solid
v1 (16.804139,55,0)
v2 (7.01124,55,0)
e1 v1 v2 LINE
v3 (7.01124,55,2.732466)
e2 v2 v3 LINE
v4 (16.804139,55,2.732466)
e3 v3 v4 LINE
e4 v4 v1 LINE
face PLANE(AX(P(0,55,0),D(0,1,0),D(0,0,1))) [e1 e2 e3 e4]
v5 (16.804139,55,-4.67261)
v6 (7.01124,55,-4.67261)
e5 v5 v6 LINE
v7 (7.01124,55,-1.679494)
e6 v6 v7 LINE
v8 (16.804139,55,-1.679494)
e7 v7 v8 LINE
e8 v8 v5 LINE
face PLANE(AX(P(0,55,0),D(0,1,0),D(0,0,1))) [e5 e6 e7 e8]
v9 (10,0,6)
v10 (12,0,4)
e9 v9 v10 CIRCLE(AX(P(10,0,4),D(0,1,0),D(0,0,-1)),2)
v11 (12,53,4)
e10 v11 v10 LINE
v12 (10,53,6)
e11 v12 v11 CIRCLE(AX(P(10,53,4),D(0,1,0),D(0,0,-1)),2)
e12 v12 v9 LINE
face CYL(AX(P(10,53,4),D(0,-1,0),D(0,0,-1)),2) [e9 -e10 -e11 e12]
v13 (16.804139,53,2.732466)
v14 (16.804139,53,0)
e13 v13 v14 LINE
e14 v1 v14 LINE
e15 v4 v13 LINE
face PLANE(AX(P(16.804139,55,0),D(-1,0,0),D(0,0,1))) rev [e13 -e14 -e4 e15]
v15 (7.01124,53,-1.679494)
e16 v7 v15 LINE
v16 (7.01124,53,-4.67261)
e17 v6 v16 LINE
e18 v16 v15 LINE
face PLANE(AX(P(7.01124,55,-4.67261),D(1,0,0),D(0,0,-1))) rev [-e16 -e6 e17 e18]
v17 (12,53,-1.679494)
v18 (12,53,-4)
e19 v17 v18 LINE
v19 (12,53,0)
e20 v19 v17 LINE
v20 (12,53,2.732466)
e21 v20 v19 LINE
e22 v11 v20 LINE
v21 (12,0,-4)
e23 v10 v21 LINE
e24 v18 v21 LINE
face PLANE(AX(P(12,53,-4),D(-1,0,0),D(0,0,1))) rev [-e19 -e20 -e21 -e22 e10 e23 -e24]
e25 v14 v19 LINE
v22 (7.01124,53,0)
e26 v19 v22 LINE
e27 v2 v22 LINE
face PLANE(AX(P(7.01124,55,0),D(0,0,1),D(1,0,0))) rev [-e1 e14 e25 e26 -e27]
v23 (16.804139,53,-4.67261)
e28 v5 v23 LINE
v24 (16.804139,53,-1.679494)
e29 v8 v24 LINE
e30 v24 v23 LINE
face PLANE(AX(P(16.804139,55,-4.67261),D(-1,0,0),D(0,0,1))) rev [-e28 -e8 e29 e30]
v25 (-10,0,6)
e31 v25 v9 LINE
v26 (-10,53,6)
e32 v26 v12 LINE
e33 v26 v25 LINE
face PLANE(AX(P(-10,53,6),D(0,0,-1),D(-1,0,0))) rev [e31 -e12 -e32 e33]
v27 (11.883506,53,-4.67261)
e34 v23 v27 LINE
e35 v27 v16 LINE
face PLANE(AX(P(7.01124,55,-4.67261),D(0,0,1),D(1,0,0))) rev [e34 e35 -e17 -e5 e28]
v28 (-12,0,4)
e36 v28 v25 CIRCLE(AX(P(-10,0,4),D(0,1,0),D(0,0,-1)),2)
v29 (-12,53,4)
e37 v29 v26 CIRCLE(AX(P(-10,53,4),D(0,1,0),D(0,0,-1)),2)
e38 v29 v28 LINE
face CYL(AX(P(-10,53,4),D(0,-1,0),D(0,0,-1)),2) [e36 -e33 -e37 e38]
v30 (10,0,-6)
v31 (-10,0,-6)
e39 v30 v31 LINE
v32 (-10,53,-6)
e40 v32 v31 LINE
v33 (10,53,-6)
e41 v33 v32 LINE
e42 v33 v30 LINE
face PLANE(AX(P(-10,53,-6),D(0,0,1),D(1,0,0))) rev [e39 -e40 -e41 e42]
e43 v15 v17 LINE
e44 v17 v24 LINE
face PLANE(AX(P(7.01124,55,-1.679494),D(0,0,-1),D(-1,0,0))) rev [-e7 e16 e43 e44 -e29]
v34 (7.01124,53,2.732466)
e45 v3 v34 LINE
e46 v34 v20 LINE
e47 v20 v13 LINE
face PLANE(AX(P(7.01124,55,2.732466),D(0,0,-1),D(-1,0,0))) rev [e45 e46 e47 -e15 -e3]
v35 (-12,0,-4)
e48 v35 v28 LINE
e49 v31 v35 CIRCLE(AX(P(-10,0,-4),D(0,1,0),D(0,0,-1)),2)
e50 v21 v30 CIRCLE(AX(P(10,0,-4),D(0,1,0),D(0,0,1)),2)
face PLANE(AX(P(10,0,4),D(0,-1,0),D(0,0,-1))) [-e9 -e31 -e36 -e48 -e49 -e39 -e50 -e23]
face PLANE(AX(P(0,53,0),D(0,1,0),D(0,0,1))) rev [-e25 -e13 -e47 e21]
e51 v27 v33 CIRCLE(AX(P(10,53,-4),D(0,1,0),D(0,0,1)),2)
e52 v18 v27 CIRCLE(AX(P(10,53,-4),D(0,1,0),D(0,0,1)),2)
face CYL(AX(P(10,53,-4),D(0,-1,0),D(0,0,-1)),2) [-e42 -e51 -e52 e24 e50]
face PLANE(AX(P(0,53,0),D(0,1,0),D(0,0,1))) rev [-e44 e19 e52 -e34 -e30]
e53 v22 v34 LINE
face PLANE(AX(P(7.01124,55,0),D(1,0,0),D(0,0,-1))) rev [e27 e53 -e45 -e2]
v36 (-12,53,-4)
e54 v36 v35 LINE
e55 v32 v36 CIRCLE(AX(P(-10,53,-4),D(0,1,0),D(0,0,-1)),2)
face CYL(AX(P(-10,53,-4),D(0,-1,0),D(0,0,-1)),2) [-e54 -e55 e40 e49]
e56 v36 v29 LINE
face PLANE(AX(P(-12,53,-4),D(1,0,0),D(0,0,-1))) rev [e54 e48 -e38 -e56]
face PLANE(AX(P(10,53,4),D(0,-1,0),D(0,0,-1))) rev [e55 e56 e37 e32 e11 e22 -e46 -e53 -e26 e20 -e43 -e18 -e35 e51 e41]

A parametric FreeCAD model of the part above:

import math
import FreeCAD as App
import Part
import Sketcher

V = App.Vector


def add_polygon(sketch, points):
    """Adds a closed chain of lines whose ends are joined by coincident constraints."""
    first, n = sketch.GeometryCount, len(points)
    for a, b in zip(points, points[1:] + points[:1]):
        sketch.addGeometry(Part.LineSegment(App.Vector(*a, 0), App.Vector(*b, 0)), False)
    for i in range(n):
        sketch.addConstraint(Sketcher.Constraint("Coincident", first + i, 2, first + (i + 1) % n, 1))

doc = App.newDocument("Part")
params = doc.addObject("Spreadsheet::Sheet", "Params")
for row, (alias, value) in enumerate([
    ("sketch1_radius", "2 mm"),
    ("sketch1_width", "20 mm"),
    ("sketch1_height", "8 mm"),
    ("pad1_length", "53 mm"),
    ("pad2_length", "2 mm"),
], start=1):
    params.set(f"A{row}", alias)
    params.set(f"B{row}", "=" + value)
    params.setAlias(f"B{row}", alias)

body = doc.addObject("PartDesign::Body", "Body")

# Sketch on XZ plane
sketch1 = body.newObject("Sketcher::SketchObject", "Sketch")
sketch1.AttachmentSupport = (doc.getObject("XZ_Plane"), [""])
sketch1.MapMode = "FlatFace"
sketch1.addGeometry(Part.LineSegment(V(10, -6, 0), V(-10, -6, 0)), False)
sketch1.addGeometry(Part.ArcOfCircle(Part.Circle(V(-10, -4, 0), V(0, 0, 1), 2), math.radians(-180), math.radians(-90)), False)
sketch1.addGeometry(Part.LineSegment(V(-12, -4, 0), V(-12, 4, 0)), False)
sketch1.addGeometry(Part.ArcOfCircle(Part.Circle(V(-10, 4, 0), V(0, 0, 1), 2), math.radians(90), math.radians(180)), False)
sketch1.addGeometry(Part.LineSegment(V(-10, 6, 0), V(10, 6, 0)), False)
sketch1.addGeometry(Part.ArcOfCircle(Part.Circle(V(10, 4, 0), V(0, 0, 1), 2), math.radians(0), math.radians(90)), False)
sketch1.addGeometry(Part.LineSegment(V(12, 4, 0), V(12, -4, 0)), False)
sketch1.addGeometry(Part.ArcOfCircle(Part.Circle(V(10, -4, 0), V(0, 0, 1), 2), math.radians(-90), math.radians(0)), False)
sketch1.addConstraint(Sketcher.Constraint("Tangent", 0, 2, 1, 2))
sketch1.addConstraint(Sketcher.Constraint("Tangent", 1, 1, 2, 1))
sketch1.addConstraint(Sketcher.Constraint("Tangent", 2, 2, 3, 2))
sketch1.addConstraint(Sketcher.Constraint("Tangent", 3, 1, 4, 1))
sketch1.addConstraint(Sketcher.Constraint("Tangent", 4, 2, 5, 2))
sketch1.addConstraint(Sketcher.Constraint("Tangent", 5, 1, 6, 1))
sketch1.addConstraint(Sketcher.Constraint("Tangent", 6, 2, 7, 2))
sketch1.addConstraint(Sketcher.Constraint("Tangent", 7, 1, 0, 1))
sketch1.addConstraint(Sketcher.Constraint("Horizontal", 0))
sketch1.addConstraint(Sketcher.Constraint("Vertical", 2))
sketch1.addConstraint(Sketcher.Constraint("Horizontal", 4))
sketch1.addConstraint(Sketcher.Constraint("Vertical", 6))
sketch1.addConstraint(Sketcher.Constraint("Equal", 1, 3))
sketch1.addConstraint(Sketcher.Constraint("Equal", 3, 5))
sketch1.addConstraint(Sketcher.Constraint("Equal", 5, 7))
sketch1.addConstraint(Sketcher.Constraint("Symmetric", 1, 3, 5, 3, -1, 1))
sketch1.addConstraint(Sketcher.Constraint("Radius", 1, 2.0))
sketch1.addConstraint(Sketcher.Constraint("DistanceX", 0, 2, 0, 1, 20.0))
sketch1.addConstraint(Sketcher.Constraint("DistanceY", 2, 1, 2, 2, 8.0))
sketch1.setExpression("Constraints[16]", "Params.sketch1_radius")
sketch1.setExpression("Constraints[17]", "Params.sketch1_width")
sketch1.setExpression("Constraints[18]", "Params.sketch1_height")
pad1 = body.newObject("PartDesign::Pad", "Pad")
pad1.Profile = sketch1
pad1.setExpression("Length", "Params.pad1_length")
pad1.Reversed = True

# Sketch on XZ plane
sketch2 = body.newObject("Sketcher::SketchObject", "Sketch001")
sketch2.AttachmentSupport = (doc.getObject("XZ_Plane"), [""])
sketch2.MapMode = "FlatFace"
sketch2.AttachmentOffset = App.Placement(V(0, 0, -53), App.Rotation())
add_polygon(sketch2, [(7.01124, -4.67261), (7.01124, -1.679494), (16.804139, -1.679494), (16.804139, -4.67261)])  # lines 0-3
add_polygon(sketch2, [(7.01124, 0), (7.01124, 2.732466), (16.804139, 2.732466), (16.804139, 0)])  # lines 4-7
sketch2.addConstraint(Sketcher.Constraint("Vertical", 0))
sketch2.addConstraint(Sketcher.Constraint("Horizontal", 1))
sketch2.addConstraint(Sketcher.Constraint("Vertical", 2))
sketch2.addConstraint(Sketcher.Constraint("Horizontal", 3))
sketch2.addConstraint(Sketcher.Constraint("Vertical", 4))
sketch2.addConstraint(Sketcher.Constraint("Horizontal", 5))
sketch2.addConstraint(Sketcher.Constraint("Vertical", 6))
sketch2.addConstraint(Sketcher.Constraint("Horizontal", 7))
sketch2.addConstraint(Sketcher.Constraint("PointOnObject", 6, 2, -1))
sketch2.addConstraint(Sketcher.Constraint("Vertical", 3, 2, 4, 2))
sketch2.addConstraint(Sketcher.Constraint("Vertical", 2, 2, 5, 2))
sketch2.addConstraint(Sketcher.Constraint("DistanceX", 1, 1, 1, 2, 9.792899))
sketch2.addConstraint(Sketcher.Constraint("DistanceY", 0, 1, 0, 2, 2.993116))
sketch2.addConstraint(Sketcher.Constraint("DistanceY", 4, 1, 4, 2, 2.732466))
sketch2.addConstraint(Sketcher.Constraint("DistanceX", -1, 1, 0, 2, 7.01124))
sketch2.addConstraint(Sketcher.Constraint("DistanceY", 2, 2, -1, 1, 4.67261))
pad2 = body.newObject("PartDesign::Pad", "Pad001")
pad2.Profile = sketch2
pad2.setExpression("Length", "Params.pad2_length")
pad2.Reversed = True

doc.recompute()
